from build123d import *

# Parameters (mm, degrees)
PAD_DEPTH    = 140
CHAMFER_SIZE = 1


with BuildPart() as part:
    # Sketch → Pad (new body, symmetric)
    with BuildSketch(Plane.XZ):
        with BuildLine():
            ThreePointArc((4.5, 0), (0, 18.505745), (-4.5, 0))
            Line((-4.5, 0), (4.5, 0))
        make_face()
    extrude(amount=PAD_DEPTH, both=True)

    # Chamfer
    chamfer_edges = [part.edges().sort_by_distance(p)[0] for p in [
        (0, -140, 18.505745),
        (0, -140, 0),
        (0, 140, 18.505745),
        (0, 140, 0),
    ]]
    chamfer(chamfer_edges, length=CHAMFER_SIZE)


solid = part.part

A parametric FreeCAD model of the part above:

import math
import FreeCAD as App
import Part
import Sketcher
from FreeCAD import Vector


def edges_at(feature, points):
    """Names of the edges that pass closest to the given points."""
    edges = feature.Shape.Edges
    near = lambda p: min(range(len(edges)), key=lambda i: edges[i].distToShape(Part.Vertex(*p))[0])
    return sorted({f"Edge{near(p) + 1}" for p in points})

doc = App.newDocument("Part")
body = doc.addObject("PartDesign::Body", "Body")

# Sketch on XZ plane
sketch1 = doc.addObject("Sketcher::SketchObject", "Sketch")
body.addObject(sketch1)
sketch1.AttachmentSupport = (doc.XZ_Plane, [""])
sketch1.MapMode = "FlatFace"
sketch1.addGeometry([
    Part.ArcOfCircle(Part.Circle(Vector(0, 8.705745, 0), Vector(0, 0, 1), 9.8), math.radians(-62.665556), math.radians(242.665556)),
    Part.LineSegment(Vector(-4.5, 0, 0), Vector(4.5, 0, 0)),
], False)
sketch1.addConstraint([
    Sketcher.Constraint("Coincident", 0, 1, 1, 2),
    Sketcher.Constraint("Coincident", 1, 1, 0, 2),
    Sketcher.Constraint("Horizontal", 1),
    Sketcher.Constraint("Symmetric", 0, 1, 1, 1, -1, 1),
    Sketcher.Constraint("Radius", 0, 9.8),
    Sketcher.Constraint("DistanceX", 1, 1, 1, 2, 9.0),
])
pad1 = doc.addObject("PartDesign::Pad", "Pad")
body.addObject(pad1)
pad1.Profile = sketch1
pad1.Length = 280
pad1.Midplane = True
doc.recompute()

chamfer = doc.addObject("PartDesign::Chamfer", "Chamfer")
body.addObject(chamfer)
chamfer.Base = (pad1, edges_at(pad1, [
    (0, -140, 18.506),
    (0, -140, 0),
    (0, 140, 18.506),
    (0, 140, 0),
]))
chamfer.Size = 1

doc.recompute()
